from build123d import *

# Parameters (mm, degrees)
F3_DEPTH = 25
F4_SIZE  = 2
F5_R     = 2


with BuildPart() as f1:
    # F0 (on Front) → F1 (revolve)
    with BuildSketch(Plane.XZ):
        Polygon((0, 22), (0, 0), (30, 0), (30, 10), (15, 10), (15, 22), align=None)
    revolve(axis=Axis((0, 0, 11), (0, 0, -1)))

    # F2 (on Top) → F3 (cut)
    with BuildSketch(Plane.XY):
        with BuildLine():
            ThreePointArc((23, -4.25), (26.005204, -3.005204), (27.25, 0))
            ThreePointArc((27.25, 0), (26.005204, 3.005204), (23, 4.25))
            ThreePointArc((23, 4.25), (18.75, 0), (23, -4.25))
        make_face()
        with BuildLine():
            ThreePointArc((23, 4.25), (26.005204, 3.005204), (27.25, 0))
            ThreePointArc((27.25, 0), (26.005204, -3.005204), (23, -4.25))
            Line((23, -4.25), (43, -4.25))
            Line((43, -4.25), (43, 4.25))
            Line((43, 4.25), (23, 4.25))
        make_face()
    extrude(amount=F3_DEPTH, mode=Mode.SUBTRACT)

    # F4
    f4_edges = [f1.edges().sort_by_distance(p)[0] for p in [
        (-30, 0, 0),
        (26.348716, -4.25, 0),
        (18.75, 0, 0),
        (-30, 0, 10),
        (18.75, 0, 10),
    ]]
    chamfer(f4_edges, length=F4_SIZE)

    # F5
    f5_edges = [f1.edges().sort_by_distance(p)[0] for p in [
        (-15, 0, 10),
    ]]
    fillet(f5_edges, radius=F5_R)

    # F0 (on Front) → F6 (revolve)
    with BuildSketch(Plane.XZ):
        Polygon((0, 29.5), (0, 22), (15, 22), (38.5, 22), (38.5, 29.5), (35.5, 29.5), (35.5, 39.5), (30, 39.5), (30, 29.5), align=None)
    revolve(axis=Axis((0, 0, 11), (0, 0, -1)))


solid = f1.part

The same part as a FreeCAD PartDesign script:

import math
import FreeCAD as App
import Part
import Sketcher
from FreeCAD import Vector
Q = App.Units.Quantity


def edges_at(feature, points):
    """Names of the edges that pass closest to the given points."""
    edges = feature.Shape.Edges
    near = lambda p: min(range(len(edges)), key=lambda i: edges[i].distToShape(Part.Vertex(*p))[0])
    return sorted({f"Edge{near(p) + 1}" for p in points})

doc = App.newDocument("Part")
params = doc.addObject("Spreadsheet::Sheet", "Params")
for row, (alias, value) in enumerate([
    ("sketch1_width", "30 mm"),
    ("sketch1_height", "22 mm"),
    ("sketch1_height2", "10 mm"),
    ("revolution_angle", "360 deg"),
    ("sketch2_width", "20 mm"),
    ("sketch2_radius", "4.25 mm"),
    ("pocket1_length", "25 mm"),
    ("chamfer_size", "2 mm"),
    ("fillet_radius", "2 mm"),
    ("sketch3_width", "3 mm"),
    ("sketch3_width2", "30 mm"),
    ("sketch3_height", "10 mm"),
    ("sketch3_width3", "38.5 mm"),
    ("sketch3_height2", "7.5 mm"),
    ("revolution2_angle", "360 deg"),
], start=1):
    params.set(f"A{row}", alias)
    params.set(f"B{row}", "=" + value)
    params.setAlias(f"B{row}", alias)

body = doc.addObject("PartDesign::Body", "Body")

sketch1 = body.newObject("Sketcher::SketchObject", "Sketch")
sketch1.AttachmentSupport = (doc.getObject("XZ_Plane"), [""])
sketch1.MapMode = "FlatFace"
sketch1.addGeometry(Part.LineSegment(Vector(0, 22, 0), Vector(0, 0, 0)), False)
sketch1.addGeometry(Part.LineSegment(Vector(0, 0, 0), Vector(30, 0, 0)), False)
sketch1.addGeometry(Part.LineSegment(Vector(30, 0, 0), Vector(30, 10, 0)), False)
sketch1.addGeometry(Part.LineSegment(Vector(30, 10, 0), Vector(15, 10, 0)), False)
sketch1.addGeometry(Part.LineSegment(Vector(15, 10, 0), Vector(15, 22, 0)), False)
sketch1.addGeometry(Part.LineSegment(Vector(15, 22, 0), Vector(0, 22, 0)), False)
sketch1.addConstraint(Sketcher.Constraint("Coincident", 0, 2, 1, 1))
sketch1.addConstraint(Sketcher.Constraint("Coincident", 1, 2, 2, 1))
sketch1.addConstraint(Sketcher.Constraint("Coincident", 2, 2, 3, 1))
sketch1.addConstraint(Sketcher.Constraint("Coincident", 3, 2, 4, 1))
sketch1.addConstraint(Sketcher.Constraint("Coincident", 4, 2, 5, 1))
sketch1.addConstraint(Sketcher.Constraint("Coincident", 5, 2, 0, 1))
sketch1.addConstraint(Sketcher.Constraint("Vertical", 0))
sketch1.addConstraint(Sketcher.Constraint("Horizontal", 1))
sketch1.addConstraint(Sketcher.Constraint("Vertical", 2))
sketch1.addConstraint(Sketcher.Constraint("Horizontal", 3))
sketch1.addConstraint(Sketcher.Constraint("Vertical", 4))
sketch1.addConstraint(Sketcher.Constraint("Horizontal", 5))
sketch1.addConstraint(Sketcher.Constraint("Coincident", 0, 2, -1, 1))
sketch1.addConstraint(Sketcher.Constraint("Equal", 3, 5))
sketch1.addConstraint(Sketcher.Constraint("DistanceX", 1, 1, 1, 2, Q("30 mm")))
sketch1.addConstraint(Sketcher.Constraint("DistanceY", 0, 2, 0, 1, Q("22 mm")))
sketch1.addConstraint(Sketcher.Constraint("DistanceY", 2, 1, 2, 2, Q("10 mm")))
sketch1.setExpression("Constraints[14]", "Params.sketch1_width")
sketch1.setExpression("Constraints[15]", "Params.sketch1_height")
sketch1.setExpression("Constraints[16]", "Params.sketch1_height2")
revolution = body.newObject("PartDesign::Revolution", "Revolution")
revolution.Profile = sketch1
revolution.ReferenceAxis = (sketch1, ["V_Axis"])
revolution.setExpression("Angle", "Params.revolution_angle")

sketch2 = body.newObject("Sketcher::SketchObject", "Sketch001")
sketch2.AttachmentSupport = (doc.getObject("XY_Plane"), [""])
sketch2.MapMode = "FlatFace"
sketch2.addGeometry(Part.ArcOfCircle(Part.Circle(Vector(23, 0, 0), Vector(0, 0, 1), 4.2), math.radians(90), math.radians(270)), False)
sketch2.addGeometry(Part.LineSegment(Vector(23, -4.2, 0), Vector(43, -4.2, 0)), False)
sketch2.addGeometry(Part.LineSegment(Vector(43, -4.2, 0), Vector(43, 4.2, 0)), False)
sketch2.addGeometry(Part.LineSegment(Vector(43, 4.2, 0), Vector(23, 4.2, 0)), False)
sketch2.addConstraint(Sketcher.Constraint("Tangent", 0, 2, 1, 1))
sketch2.addConstraint(Sketcher.Constraint("Coincident", 1, 2, 2, 1))
sketch2.addConstraint(Sketcher.Constraint("Coincident", 2, 2, 3, 1))
sketch2.addConstraint(Sketcher.Constraint("Tangent", 3, 2, 0, 1))
sketch2.addConstraint(Sketcher.Constraint("Horizontal", 1))
sketch2.addConstraint(Sketcher.Constraint("Vertical", 2))
sketch2.addConstraint(Sketcher.Constraint("Horizontal", 3))
sketch2.addConstraint(Sketcher.Constraint("PointOnObject", 0, 3, -1))
sketch2.addConstraint(Sketcher.Constraint("DistanceX", 1, 1, 1, 2, Q("20 mm")))
sketch2.addConstraint(Sketcher.Constraint("Radius", 0, Q("4.25 mm")))
sketch2.addConstraint(Sketcher.Constraint("DistanceX", -1, 1, 0, 3, Q("23 mm")))
sketch2.setExpression("Constraints[8]", "Params.sketch2_width")
sketch2.setExpression("Constraints[9]", "Params.sketch2_radius")
pocket1 = body.newObject("PartDesign::Pocket", "Pocket")
pocket1.Profile = sketch2
pocket1.setExpression("Length", "Params.pocket1_length")
pocket1.Reversed = True
doc.recompute()

chamfer = body.newObject("PartDesign::Chamfer", "Chamfer")
chamfer.Base = (pocket1, edges_at(pocket1, [
    (-30, 0, 0),
    (26.349, -4.25, 0),
    (18.75, 0, 0),
    (-30, 0, 10),
    (18.75, 0, 10),
]))
chamfer.setExpression("Size", "Params.chamfer_size")
doc.recompute()

fillet = body.newObject("PartDesign::Fillet", "Fillet")
fillet.Base = (chamfer, edges_at(chamfer, [(-15, 0, 10)]))
fillet.setExpression("Radius", "Params.fillet_radius")

sketch3 = body.newObject("Sketcher::SketchObject", "Sketch002")
sketch3.AttachmentSupport = (doc.getObject("XZ_Plane"), [""])
sketch3.MapMode = "FlatFace"
sketch3.addGeometry(Part.LineSegment(Vector(0, 29.5, 0), Vector(0, 22, 0)), False)
sketch3.addGeometry(Part.LineSegment(Vector(0, 22, 0), Vector(38.5, 22, 0)), False)
sketch3.addGeometry(Part.LineSegment(Vector(38.5, 22, 0), Vector(38.5, 29.5, 0)), False)
sketch3.addGeometry(Part.LineSegment(Vector(38.5, 29.5, 0), Vector(35.5, 29.5, 0)), False)
sketch3.addGeometry(Part.LineSegment(Vector(35.5, 29.5, 0), Vector(35.5, 39.5, 0)), False)
sketch3.addGeometry(Part.LineSegment(Vector(35.5, 39.5, 0), Vector(30, 39.5, 0)), False)
sketch3.addGeometry(Part.LineSegment(Vector(30, 39.5, 0), Vector(30, 29.5, 0)), False)
sketch3.addGeometry(Part.LineSegment(Vector(30, 29.5, 0), Vector(0, 29.5, 0)), False)
sketch3.addConstraint(Sketcher.Constraint("Coincident", 0, 2, 1, 1))
sketch3.addConstraint(Sketcher.Constraint("Coincident", 1, 2, 2, 1))
sketch3.addConstraint(Sketcher.Constraint("Coincident", 2, 2, 3, 1))
sketch3.addConstraint(Sketcher.Constraint("Coincident", 3, 2, 4, 1))
sketch3.addConstraint(Sketcher.Constraint("Coincident", 4, 2, 5, 1))
sketch3.addConstraint(Sketcher.Constraint("Coincident", 5, 2, 6, 1))
sketch3.addConstraint(Sketcher.Constraint("Coincident", 6, 2, 7, 1))
sketch3.addConstraint(Sketcher.Constraint("Coincident", 7, 2, 0, 1))
sketch3.addConstraint(Sketcher.Constraint("Vertical", 0))
sketch3.addConstraint(Sketcher.Constraint("Horizontal", 1))
sketch3.addConstraint(Sketcher.Constraint("Vertical", 2))
sketch3.addConstraint(Sketcher.Constraint("Horizontal", 3))
sketch3.addConstraint(Sketcher.Constraint("Vertical", 4))
sketch3.addConstraint(Sketcher.Constraint("Horizontal", 5))
sketch3.addConstraint(Sketcher.Constraint("Vertical", 6))
sketch3.addConstraint(Sketcher.Constraint("Horizontal", 7))
sketch3.addConstraint(Sketcher.Constraint("PointOnObject", 0, 2, -2))
sketch3.addConstraint(Sketcher.Constraint("Horizontal", 3, 2, 6, 2))
sketch3.addConstraint(Sketcher.Constraint("DistanceX", 3, 2, 3, 1, Q("3 mm")))
sketch3.addConstraint(Sketcher.Constraint("DistanceX", 7, 2, 7, 1, Q("30 mm")))
sketch3.addConstraint(Sketcher.Constraint("DistanceY", 4, 1, 4, 2, Q("10 mm")))
sketch3.addConstraint(Sketcher.Constraint("DistanceX", 1, 1, 1, 2, Q("38.5 mm")))
sketch3.addConstraint(Sketcher.Constraint("DistanceY", 0, 2, 0, 1, Q("7.5 mm")))
sketch3.addConstraint(Sketcher.Constraint("DistanceY", -1, 1, 0, 2, Q("22 mm")))
sketch3.setExpression("Constraints[18]", "Params.sketch3_width")
sketch3.setExpression("Constraints[19]", "Params.sketch3_width2")
sketch3.setExpression("Constraints[20]", "Params.sketch3_height")
sketch3.setExpression("Constraints[21]", "Params.sketch3_width3")
sketch3.setExpression("Constraints[22]", "Params.sketch3_height2")
revolution2 = body.newObject("PartDesign::Revolution", "Revolution001")
revolution2.Profile = sketch3
revolution2.ReferenceAxis = (sketch3, ["V_Axis"])
revolution2.setExpression("Angle", "Params.revolution2_angle")

doc.recompute()
